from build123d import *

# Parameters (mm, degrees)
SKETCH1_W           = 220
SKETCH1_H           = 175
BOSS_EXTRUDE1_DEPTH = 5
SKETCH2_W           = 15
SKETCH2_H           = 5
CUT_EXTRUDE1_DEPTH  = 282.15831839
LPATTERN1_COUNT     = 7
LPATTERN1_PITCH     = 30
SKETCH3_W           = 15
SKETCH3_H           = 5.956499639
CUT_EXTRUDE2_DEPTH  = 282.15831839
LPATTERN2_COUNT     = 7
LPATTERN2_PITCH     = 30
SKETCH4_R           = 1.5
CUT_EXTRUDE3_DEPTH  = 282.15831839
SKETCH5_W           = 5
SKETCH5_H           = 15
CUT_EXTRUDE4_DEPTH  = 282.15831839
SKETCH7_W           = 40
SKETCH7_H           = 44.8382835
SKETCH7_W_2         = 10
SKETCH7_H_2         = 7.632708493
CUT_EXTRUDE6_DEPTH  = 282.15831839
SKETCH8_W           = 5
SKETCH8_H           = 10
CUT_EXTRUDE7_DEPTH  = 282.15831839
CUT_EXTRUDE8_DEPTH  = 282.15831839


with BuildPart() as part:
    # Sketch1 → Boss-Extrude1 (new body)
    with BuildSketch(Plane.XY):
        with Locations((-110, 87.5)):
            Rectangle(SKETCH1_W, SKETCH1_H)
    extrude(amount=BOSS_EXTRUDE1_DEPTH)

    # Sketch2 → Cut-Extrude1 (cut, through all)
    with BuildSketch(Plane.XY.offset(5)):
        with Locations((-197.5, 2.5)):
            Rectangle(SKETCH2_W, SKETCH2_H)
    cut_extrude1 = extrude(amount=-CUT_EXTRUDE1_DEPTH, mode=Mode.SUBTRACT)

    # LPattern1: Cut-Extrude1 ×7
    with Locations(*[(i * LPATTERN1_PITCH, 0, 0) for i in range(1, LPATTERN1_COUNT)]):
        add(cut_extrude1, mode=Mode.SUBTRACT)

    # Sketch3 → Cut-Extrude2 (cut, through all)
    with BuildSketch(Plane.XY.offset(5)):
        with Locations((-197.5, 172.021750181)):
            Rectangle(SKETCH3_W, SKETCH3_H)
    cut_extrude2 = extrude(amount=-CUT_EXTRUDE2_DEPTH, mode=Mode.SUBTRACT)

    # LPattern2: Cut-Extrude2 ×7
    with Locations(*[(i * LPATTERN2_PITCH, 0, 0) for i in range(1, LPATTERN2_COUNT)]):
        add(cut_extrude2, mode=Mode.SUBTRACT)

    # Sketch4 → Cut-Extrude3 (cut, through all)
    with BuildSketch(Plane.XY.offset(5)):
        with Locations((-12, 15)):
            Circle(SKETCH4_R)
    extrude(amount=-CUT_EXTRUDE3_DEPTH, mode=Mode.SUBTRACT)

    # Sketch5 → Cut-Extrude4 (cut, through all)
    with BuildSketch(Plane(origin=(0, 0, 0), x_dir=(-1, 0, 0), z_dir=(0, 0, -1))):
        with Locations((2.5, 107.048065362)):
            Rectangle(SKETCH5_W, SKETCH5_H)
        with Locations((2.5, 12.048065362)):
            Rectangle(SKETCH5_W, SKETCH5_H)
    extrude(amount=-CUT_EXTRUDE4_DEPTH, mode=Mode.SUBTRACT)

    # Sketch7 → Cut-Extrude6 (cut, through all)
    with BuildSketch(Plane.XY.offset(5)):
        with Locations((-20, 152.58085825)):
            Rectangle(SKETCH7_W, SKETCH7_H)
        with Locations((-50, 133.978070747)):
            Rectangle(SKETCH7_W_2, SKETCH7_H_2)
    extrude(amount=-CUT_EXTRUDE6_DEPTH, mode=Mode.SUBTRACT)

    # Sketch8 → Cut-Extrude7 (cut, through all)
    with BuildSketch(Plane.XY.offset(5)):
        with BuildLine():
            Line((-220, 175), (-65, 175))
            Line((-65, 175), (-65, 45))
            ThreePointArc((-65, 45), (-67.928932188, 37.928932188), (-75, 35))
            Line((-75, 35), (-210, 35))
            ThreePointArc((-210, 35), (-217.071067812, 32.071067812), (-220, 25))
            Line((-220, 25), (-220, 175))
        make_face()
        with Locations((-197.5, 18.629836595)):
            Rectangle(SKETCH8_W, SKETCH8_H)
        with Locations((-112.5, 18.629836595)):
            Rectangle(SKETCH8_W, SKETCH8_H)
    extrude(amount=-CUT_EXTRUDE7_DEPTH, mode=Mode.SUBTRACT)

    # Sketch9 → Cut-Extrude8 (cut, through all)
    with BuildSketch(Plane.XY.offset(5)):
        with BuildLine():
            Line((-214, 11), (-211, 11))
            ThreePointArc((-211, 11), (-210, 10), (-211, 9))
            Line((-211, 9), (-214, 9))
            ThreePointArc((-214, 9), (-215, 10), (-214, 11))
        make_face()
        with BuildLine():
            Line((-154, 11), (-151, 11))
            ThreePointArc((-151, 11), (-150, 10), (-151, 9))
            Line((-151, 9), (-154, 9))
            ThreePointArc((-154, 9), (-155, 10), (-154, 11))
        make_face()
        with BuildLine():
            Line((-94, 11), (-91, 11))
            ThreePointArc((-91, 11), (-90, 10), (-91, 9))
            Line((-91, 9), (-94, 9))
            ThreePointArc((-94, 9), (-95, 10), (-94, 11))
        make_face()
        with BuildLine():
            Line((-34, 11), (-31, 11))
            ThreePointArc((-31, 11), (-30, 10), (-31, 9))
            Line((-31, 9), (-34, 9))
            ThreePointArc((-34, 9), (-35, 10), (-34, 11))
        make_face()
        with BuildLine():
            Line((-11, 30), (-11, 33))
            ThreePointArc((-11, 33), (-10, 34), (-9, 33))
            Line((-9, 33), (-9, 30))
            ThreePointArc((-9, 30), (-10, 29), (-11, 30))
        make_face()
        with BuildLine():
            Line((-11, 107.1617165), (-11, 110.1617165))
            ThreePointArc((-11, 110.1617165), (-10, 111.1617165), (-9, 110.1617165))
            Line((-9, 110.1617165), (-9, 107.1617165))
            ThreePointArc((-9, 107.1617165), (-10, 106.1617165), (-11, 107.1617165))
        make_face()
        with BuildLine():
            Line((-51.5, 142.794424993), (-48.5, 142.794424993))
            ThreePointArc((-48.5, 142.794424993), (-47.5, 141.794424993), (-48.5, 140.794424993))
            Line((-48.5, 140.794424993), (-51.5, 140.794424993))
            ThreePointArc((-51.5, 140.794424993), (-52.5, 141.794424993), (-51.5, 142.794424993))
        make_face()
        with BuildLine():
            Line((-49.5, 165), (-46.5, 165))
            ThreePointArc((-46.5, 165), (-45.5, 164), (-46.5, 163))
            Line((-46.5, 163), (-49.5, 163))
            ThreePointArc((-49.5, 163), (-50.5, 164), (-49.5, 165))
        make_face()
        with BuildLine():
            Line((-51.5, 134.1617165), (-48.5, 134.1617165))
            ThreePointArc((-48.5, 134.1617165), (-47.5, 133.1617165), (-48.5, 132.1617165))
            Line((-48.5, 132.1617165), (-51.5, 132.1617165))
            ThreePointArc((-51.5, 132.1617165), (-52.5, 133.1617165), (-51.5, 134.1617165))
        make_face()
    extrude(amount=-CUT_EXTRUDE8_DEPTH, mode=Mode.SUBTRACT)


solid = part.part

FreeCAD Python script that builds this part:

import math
import FreeCAD as App
import Part
import Sketcher

doc = App.newDocument("Part")
body = doc.addObject("PartDesign::Body", "Body")

# Sketch on XY plane
sketch1 = doc.addObject("Sketcher::SketchObject", "Sketch")
body.addObject(sketch1)
sketch1.AttachmentSupport = (doc.XY_Plane, [""])
sketch1.MapMode = "FlatFace"
sketch1.addGeometry([
    Part.LineSegment(App.Vector(-220, 175, 0), App.Vector(-220, 0, 0)),
    Part.LineSegment(App.Vector(-220, 0, 0), App.Vector(0, 0, 0)),
    Part.LineSegment(App.Vector(0, 0, 0), App.Vector(0, 175, 0)),
    Part.LineSegment(App.Vector(0, 175, 0), App.Vector(-220, 175, 0)),
], False)
sketch1.addConstraint([
    Sketcher.Constraint("Coincident", 0, 2, 1, 1),
    Sketcher.Constraint("Coincident", 1, 2, 2, 1),
    Sketcher.Constraint("Coincident", 2, 2, 3, 1),
    Sketcher.Constraint("Coincident", 3, 2, 0, 1),
    Sketcher.Constraint("Vertical", 0),
    Sketcher.Constraint("Horizontal", 1),
    Sketcher.Constraint("Vertical", 2),
    Sketcher.Constraint("Horizontal", 3),
    Sketcher.Constraint("Coincident", 1, 2, -1, 1),
    Sketcher.Constraint("DistanceX", 1, 1, 1, 2, 220.0),
    Sketcher.Constraint("DistanceY", 0, 2, 0, 1, 175.0),
])
pad1 = doc.addObject("PartDesign::Pad", "Pad")
body.addObject(pad1)
pad1.Profile = sketch1
pad1.Length = 5

# Sketch on XY plane
sketch2 = doc.addObject("Sketcher::SketchObject", "Sketch001")
body.addObject(sketch2)
sketch2.AttachmentSupport = (doc.XY_Plane, [""])
sketch2.MapMode = "FlatFace"
sketch2.AttachmentOffset = App.Placement(App.Vector(0, 0, 5), App.Rotation())
sketch2.addGeometry([
    Part.LineSegment(App.Vector(-205, 5, 0), App.Vector(-205, 0, 0)),
    Part.LineSegment(App.Vector(-205, 0, 0), App.Vector(-190, 0, 0)),
    Part.LineSegment(App.Vector(-190, 0, 0), App.Vector(-190, 5, 0)),
    Part.LineSegment(App.Vector(-190, 5, 0), App.Vector(-205, 5, 0)),
], False)
sketch2.addConstraint([
    Sketcher.Constraint("Coincident", 0, 2, 1, 1),
    Sketcher.Constraint("Coincident", 1, 2, 2, 1),
    Sketcher.Constraint("Coincident", 2, 2, 3, 1),
    Sketcher.Constraint("Coincident", 3, 2, 0, 1),
    Sketcher.Constraint("Vertical", 0),
    Sketcher.Constraint("Horizontal", 1),
    Sketcher.Constraint("Vertical", 2),
    Sketcher.Constraint("Horizontal", 3),
    Sketcher.Constraint("PointOnObject", 0, 2, -1),
    Sketcher.Constraint("DistanceX", 1, 1, 1, 2, 15.0),
    Sketcher.Constraint("DistanceY", 0, 2, 0, 1, 5.0),
    Sketcher.Constraint("DistanceX", 0, 2, -1, 1, 205.0),
])
pocket1 = doc.addObject("PartDesign::Pocket", "Pocket")
body.addObject(pocket1)
pocket1.Profile = sketch2
pocket1.Type = "ThroughAll"
doc.recompute()

linearpattern = doc.addObject("PartDesign::LinearPattern", "LinearPattern")
body.addObject(linearpattern)
linearpattern.Originals = [pocket1]
linearpattern.Direction = (doc.X_Axis, [""])
linearpattern.Mode = "offset"
linearpattern.Offset = 30
linearpattern.Occurrences = 7
body.Tip = linearpattern

# Sketch on XY plane
sketch3 = doc.addObject("Sketcher::SketchObject", "Sketch002")
body.addObject(sketch3)
sketch3.AttachmentSupport = (doc.XY_Plane, [""])
sketch3.MapMode = "FlatFace"
sketch3.AttachmentOffset = App.Placement(App.Vector(0, 0, 5), App.Rotation())
sketch3.addGeometry([
    Part.LineSegment(App.Vector(-205, 175, 0), App.Vector(-205, 169.0435, 0)),
    Part.LineSegment(App.Vector(-205, 169.0435, 0), App.Vector(-190, 169.0435, 0)),
    Part.LineSegment(App.Vector(-190, 169.0435, 0), App.Vector(-190, 175, 0)),
    Part.LineSegment(App.Vector(-190, 175, 0), App.Vector(-205, 175, 0)),
], False)
sketch3.addConstraint([
    Sketcher.Constraint("Coincident", 0, 2, 1, 1),
    Sketcher.Constraint("Coincident", 1, 2, 2, 1),
    Sketcher.Constraint("Coincident", 2, 2, 3, 1),
    Sketcher.Constraint("Coincident", 3, 2, 0, 1),
    Sketcher.Constraint("Vertical", 0),
    Sketcher.Constraint("Horizontal", 1),
    Sketcher.Constraint("Vertical", 2),
    Sketcher.Constraint("Horizontal", 3),
    Sketcher.Constraint("DistanceX", 1, 1, 1, 2, 15.0),
    Sketcher.Constraint("DistanceX", 0, 2, -1, 1, 205.0),
    Sketcher.Constraint("DistanceY", -1, 1, 2, 2, 175.0),
    Sketcher.Constraint("DistanceY", 0, 2, 0, 1, 5.9565),
])
pocket2 = doc.addObject("PartDesign::Pocket", "Pocket001")
body.addObject(pocket2)
pocket2.Profile = sketch3
pocket2.Type = "ThroughAll"
doc.recompute()

linearpattern2 = doc.addObject("PartDesign::LinearPattern", "LinearPattern001")
body.addObject(linearpattern2)
linearpattern2.Originals = [pocket2]
linearpattern2.Direction = (doc.X_Axis, [""])
linearpattern2.Mode = "offset"
linearpattern2.Offset = 30
linearpattern2.Occurrences = 7
body.Tip = linearpattern2

# Sketch on XY plane
sketch4 = doc.addObject("Sketcher::SketchObject", "Sketch003")
body.addObject(sketch4)
sketch4.AttachmentSupport = (doc.XY_Plane, [""])
sketch4.MapMode = "FlatFace"
sketch4.AttachmentOffset = App.Placement(App.Vector(0, 0, 5), App.Rotation())
sketch4.addGeometry(Part.Circle(App.Vector(-12, 15, 0), App.Vector(0, 0, 1), 1.5), False)
sketch4.addConstraint([
    Sketcher.Constraint("Diameter", 0, 3.0),
    Sketcher.Constraint("DistanceX", 0, 3, -1, 1, 12.0),
    Sketcher.Constraint("DistanceY", -1, 1, 0, 3, 15.0),
])
pocket3 = doc.addObject("PartDesign::Pocket", "Pocket002")
body.addObject(pocket3)
pocket3.Profile = sketch4
pocket3.Type = "ThroughAll"

# Sketch on XY plane
sketch5 = doc.addObject("Sketcher::SketchObject", "Sketch004")
body.addObject(sketch5)
sketch5.AttachmentSupport = (doc.XY_Plane, [""])
sketch5.MapMode = "FlatFace"
sketch5.addGeometry([
    Part.LineSegment(App.Vector(0, 114.548065, 0), App.Vector(0, 99.548065, 0)),  # 0
    Part.LineSegment(App.Vector(0, 99.548065, 0), App.Vector(-5, 99.548065, 0)),  # 1
    Part.LineSegment(App.Vector(-5, 99.548065, 0), App.Vector(-5, 114.548065, 0)),  # 2
    Part.LineSegment(App.Vector(-5, 114.548065, 0), App.Vector(0, 114.548065, 0)),  # 3
    Part.LineSegment(App.Vector(0, 19.548065, 0), App.Vector(0, 4.548065, 0)),  # 4
    Part.LineSegment(App.Vector(0, 4.548065, 0), App.Vector(-5, 4.548065, 0)),  # 5
    Part.LineSegment(App.Vector(-5, 4.548065, 0), App.Vector(-5, 19.548065, 0)),  # 6
    Part.LineSegment(App.Vector(-5, 19.548065, 0), App.Vector(0, 19.548065, 0)),  # 7
], False)
sketch5.addConstraint([
    Sketcher.Constraint("Coincident", 0, 2, 1, 1),
    Sketcher.Constraint("Coincident", 1, 2, 2, 1),
    Sketcher.Constraint("Coincident", 2, 2, 3, 1),
    Sketcher.Constraint("Coincident", 3, 2, 0, 1),
    Sketcher.Constraint("Coincident", 4, 2, 5, 1),
    Sketcher.Constraint("Coincident", 5, 2, 6, 1),
    Sketcher.Constraint("Coincident", 6, 2, 7, 1),
    Sketcher.Constraint("Coincident", 7, 2, 4, 1),
    Sketcher.Constraint("Vertical", 0),
    Sketcher.Constraint("Horizontal", 1),
    Sketcher.Constraint("Vertical", 2),
    Sketcher.Constraint("Horizontal", 3),
    Sketcher.Constraint("Vertical", 4),
    Sketcher.Constraint("Horizontal", 5),
    Sketcher.Constraint("Vertical", 6),
    Sketcher.Constraint("Horizontal", 7),
    Sketcher.Constraint("PointOnObject", 0, 2, -2),
    Sketcher.Constraint("PointOnObject", 4, 2, -2),
    Sketcher.Constraint("Vertical", 2, 2, 5, 2),
    Sketcher.Constraint("Equal", 2, 4),
    Sketcher.Constraint("DistanceX", 1, 2, 1, 1, 5.0),
    Sketcher.Constraint("DistanceY", 0, 2, 0, 1, 15.0),
    Sketcher.Constraint("DistanceY", 4, 2, 0, 2, 95.0),
    Sketcher.Constraint("DistanceY", -1, 1, 0, 2, 99.548065),
])
pocket4 = doc.addObject("PartDesign::Pocket", "Pocket003")
body.addObject(pocket4)
pocket4.Profile = sketch5
pocket4.Type = "ThroughAll"
pocket4.Reversed = True

# Sketch on XY plane
sketch6 = doc.addObject("Sketcher::SketchObject", "Sketch005")
body.addObject(sketch6)
sketch6.AttachmentSupport = (doc.XY_Plane, [""])
sketch6.MapMode = "FlatFace"
sketch6.AttachmentOffset = App.Placement(App.Vector(0, 0, 5), App.Rotation())
sketch6.addGeometry([
    Part.LineSegment(App.Vector(-40, 175, 0), App.Vector(-40, 130.161717, 0)),  # 0
    Part.LineSegment(App.Vector(-40, 130.161717, 0), App.Vector(0, 130.161717, 0)),  # 1
    Part.LineSegment(App.Vector(0, 130.161717, 0), App.Vector(0, 175, 0)),  # 2
    Part.LineSegment(App.Vector(0, 175, 0), App.Vector(-40, 175, 0)),  # 3
    Part.LineSegment(App.Vector(-55, 137.794425, 0), App.Vector(-55, 130.161717, 0)),  # 4
    Part.LineSegment(App.Vector(-55, 130.161717, 0), App.Vector(-45, 130.161717, 0)),  # 5
    Part.LineSegment(App.Vector(-45, 130.161717, 0), App.Vector(-45, 137.794425, 0)),  # 6
    Part.LineSegment(App.Vector(-45, 137.794425, 0), App.Vector(-55, 137.794425, 0)),  # 7
], False)
sketch6.addConstraint([
    Sketcher.Constraint("Coincident", 0, 2, 1, 1),
    Sketcher.Constraint("Coincident", 1, 2, 2, 1),
    Sketcher.Constraint("Coincident", 2, 2, 3, 1),
    Sketcher.Constraint("Coincident", 3, 2, 0, 1),
    Sketcher.Constraint("Coincident", 4, 2, 5, 1),
    Sketcher.Constraint("Coincident", 5, 2, 6, 1),
    Sketcher.Constraint("Coincident", 6, 2, 7, 1),
    Sketcher.Constraint("Coincident", 7, 2, 4, 1),
    Sketcher.Constraint("Vertical", 0),
    Sketcher.Constraint("Horizontal", 1),
    Sketcher.Constraint("Vertical", 2),
    Sketcher.Constraint("Horizontal", 3),
    Sketcher.Constraint("Vertical", 4),
    Sketcher.Constraint("Horizontal", 5),
    Sketcher.Constraint("Vertical", 6),
    Sketcher.Constraint("Horizontal", 7),
    Sketcher.Constraint("PointOnObject", 1, 2, -2),
    Sketcher.Constraint("Horizontal", 1, 2, 4, 2),
    Sketcher.Constraint("DistanceX", 1, 1, 1, 2, 40.0),
    Sketcher.Constraint("DistanceX", 5, 1, 5, 2, 10.0),
    Sketcher.Constraint("DistanceY", -1, 1, 2, 2, 175.0),
    Sketcher.Constraint("DistanceX", 4, 2, -1, 1, 55.0),
    Sketcher.Constraint("DistanceY", 4, 2, 4, 1, 7.632708),
    Sketcher.Constraint("DistanceY", 0, 2, 0, 1, 44.838283),
])
pocket5 = doc.addObject("PartDesign::Pocket", "Pocket004")
body.addObject(pocket5)
pocket5.Profile = sketch6
pocket5.Type = "ThroughAll"

# Sketch on XY plane
sketch7 = doc.addObject("Sketcher::SketchObject", "Sketch006")
body.addObject(sketch7)
sketch7.AttachmentSupport = (doc.XY_Plane, [""])
sketch7.MapMode = "FlatFace"
sketch7.AttachmentOffset = App.Placement(App.Vector(0, 0, 5), App.Rotation())
sketch7.addGeometry([
    Part.LineSegment(App.Vector(-65, 175, 0), App.Vector(-220, 175, 0)),  # 0
    Part.LineSegment(App.Vector(-220, 175, 0), App.Vector(-220, 25, 0)),  # 1
    Part.ArcOfCircle(Part.Circle(App.Vector(-210, 25, 0), App.Vector(0, 0, 1), 10), math.radians(90), math.radians(180)),  # 2
    Part.LineSegment(App.Vector(-210, 35, 0), App.Vector(-75, 35, 0)),  # 3
    Part.ArcOfCircle(Part.Circle(App.Vector(-75, 45, 0), App.Vector(0, 0, 1), 10), math.radians(-90), math.radians(0)),  # 4
    Part.LineSegment(App.Vector(-65, 45, 0), App.Vector(-65, 175, 0)),  # 5
    Part.LineSegment(App.Vector(-200, 23.629837, 0), App.Vector(-200, 13.629837, 0)),  # 6
    Part.LineSegment(App.Vector(-200, 13.629837, 0), App.Vector(-195, 13.629837, 0)),  # 7
    Part.LineSegment(App.Vector(-195, 13.629837, 0), App.Vector(-195, 23.629837, 0)),  # 8
    Part.LineSegment(App.Vector(-195, 23.629837, 0), App.Vector(-200, 23.629837, 0)),  # 9
    Part.LineSegment(App.Vector(-115, 23.629837, 0), App.Vector(-115, 13.629837, 0)),  # 10
    Part.LineSegment(App.Vector(-115, 13.629837, 0), App.Vector(-110, 13.629837, 0)),  # 11
    Part.LineSegment(App.Vector(-110, 13.629837, 0), App.Vector(-110, 23.629837, 0)),  # 12
    Part.LineSegment(App.Vector(-110, 23.629837, 0), App.Vector(-115, 23.629837, 0)),  # 13
], False)
sketch7.addConstraint([
    Sketcher.Constraint("Coincident", 0, 2, 1, 1),
    Sketcher.Constraint("Tangent", 1, 2, 2, 2),
    Sketcher.Constraint("Tangent", 2, 1, 3, 1),
    Sketcher.Constraint("Tangent", 3, 2, 4, 1),
    Sketcher.Constraint("Tangent", 4, 2, 5, 1),
    Sketcher.Constraint("Coincident", 5, 2, 0, 1),
    Sketcher.Constraint("Coincident", 6, 2, 7, 1),
    Sketcher.Constraint("Coincident", 7, 2, 8, 1),
    Sketcher.Constraint("Coincident", 8, 2, 9, 1),
    Sketcher.Constraint("Coincident", 9, 2, 6, 1),
    Sketcher.Constraint("Coincident", 10, 2, 11, 1),
    Sketcher.Constraint("Coincident", 11, 2, 12, 1),
    Sketcher.Constraint("Coincident", 12, 2, 13, 1),
    Sketcher.Constraint("Coincident", 13, 2, 10, 1),
    Sketcher.Constraint("Horizontal", 0),
    Sketcher.Constraint("Vertical", 1),
    Sketcher.Constraint("Horizontal", 3),
    Sketcher.Constraint("Vertical", 5),
    Sketcher.Constraint("Vertical", 6),
    Sketcher.Constraint("Horizontal", 7),
    Sketcher.Constraint("Vertical", 8),
    Sketcher.Constraint("Horizontal", 9),
    Sketcher.Constraint("Vertical", 10),
    Sketcher.Constraint("Horizontal", 11),
    Sketcher.Constraint("Vertical", 12),
    Sketcher.Constraint("Horizontal", 13),
    Sketcher.Constraint("Equal", 2, 4),
    Sketcher.Constraint("Horizontal", 7, 2, 10, 2),
    Sketcher.Constraint("Horizontal", 9, 2, 12, 2),
    Sketcher.Constraint("Equal", 9, 11),
    Sketcher.Constraint("Radius", 2, 10.0),
    Sketcher.Constraint("DistanceX", 0, 2, 0, 1, 155.0),
    Sketcher.Constraint("DistanceX", 7, 1, 7, 2, 5.0),
    Sketcher.Constraint("DistanceY", 1, 2, 1, 1, 150.0),
    Sketcher.Constraint("DistanceY", 6, 2, 6, 1, 10.0),
    Sketcher.Constraint("DistanceX", 2, 3, -1, 1, 210.0),
    Sketcher.Constraint("DistanceY", -1, 1, 2, 3, 25.0),
    Sketcher.Constraint("DistanceX", 6, 2, -1, 1, 200.0),
    Sketcher.Constraint("DistanceX", 10, 2, -1, 1, 115.0),
    Sketcher.Constraint("DistanceY", -1, 1, 6, 2, 13.629837),
])
pocket6 = doc.addObject("PartDesign::Pocket", "Pocket005")
body.addObject(pocket6)
pocket6.Profile = sketch7
pocket6.Type = "ThroughAll"

# Sketch on XY plane
sketch8 = doc.addObject("Sketcher::SketchObject", "Sketch007")
body.addObject(sketch8)
sketch8.AttachmentSupport = (doc.XY_Plane, [""])
sketch8.MapMode = "FlatFace"
sketch8.AttachmentOffset = App.Placement(App.Vector(0, 0, 5), App.Rotation())
sketch8.addGeometry([
    Part.LineSegment(App.Vector(-211, 11, 0), App.Vector(-214, 11, 0)),  # 0
    Part.ArcOfCircle(Part.Circle(App.Vector(-214, 10, 0), App.Vector(0, 0, 1), 1), math.radians(90), math.radians(270)),  # 1
    Part.LineSegment(App.Vector(-214, 9, 0), App.Vector(-211, 9, 0)),  # 2
    Part.ArcOfCircle(Part.Circle(App.Vector(-211, 10, 0), App.Vector(0, 0, 1), 1), math.radians(-90), math.radians(90)),  # 3
    Part.LineSegment(App.Vector(-151, 11, 0), App.Vector(-154, 11, 0)),  # 4
    Part.ArcOfCircle(Part.Circle(App.Vector(-154, 10, 0), App.Vector(0, 0, 1), 1), math.radians(90), math.radians(270)),  # 5
    Part.LineSegment(App.Vector(-154, 9, 0), App.Vector(-151, 9, 0)),  # 6
    Part.ArcOfCircle(Part.Circle(App.Vector(-151, 10, 0), App.Vector(0, 0, 1), 1), math.radians(-90), math.radians(90)),  # 7
    Part.LineSegment(App.Vector(-91, 11, 0), App.Vector(-94, 11, 0)),  # 8
    Part.ArcOfCircle(Part.Circle(App.Vector(-94, 10, 0), App.Vector(0, 0, 1), 1), math.radians(90), math.radians(270)),  # 9
    Part.LineSegment(App.Vector(-94, 9, 0), App.Vector(-91, 9, 0)),  # 10
    Part.ArcOfCircle(Part.Circle(App.Vector(-91, 10, 0), App.Vector(0, 0, 1), 1), math.radians(-90), math.radians(90)),  # 11
    Part.LineSegment(App.Vector(-31, 11, 0), App.Vector(-34, 11, 0)),  # 12
    Part.ArcOfCircle(Part.Circle(App.Vector(-34, 10, 0), App.Vector(0, 0, 1), 1), math.radians(90), math.radians(270)),  # 13
    Part.LineSegment(App.Vector(-34, 9, 0), App.Vector(-31, 9, 0)),  # 14
    Part.ArcOfCircle(Part.Circle(App.Vector(-31, 10, 0), App.Vector(0, 0, 1), 1), math.radians(-90), math.radians(90)),  # 15
    Part.LineSegment(App.Vector(-11, 33, 0), App.Vector(-11, 30, 0)),  # 16
    Part.ArcOfCircle(Part.Circle(App.Vector(-10, 30, 0), App.Vector(0, 0, 1), 1), math.radians(180), math.radians(360)),  # 17
    Part.LineSegment(App.Vector(-9, 30, 0), App.Vector(-9, 33, 0)),  # 18
    Part.ArcOfCircle(Part.Circle(App.Vector(-10, 33, 0), App.Vector(0, 0, 1), 1), math.radians(0), math.radians(180)),  # 19
    Part.LineSegment(App.Vector(-11, 110.161716, 0), App.Vector(-11, 107.161716, 0)),  # 20
    Part.ArcOfCircle(Part.Circle(App.Vector(-10, 107.161716, 0), App.Vector(0, 0, 1), 1), math.radians(180), math.radians(360)),  # 21
    Part.LineSegment(App.Vector(-9, 107.161716, 0), App.Vector(-9, 110.161716, 0)),  # 22
    Part.ArcOfCircle(Part.Circle(App.Vector(-10, 110.161716, 0), App.Vector(0, 0, 1), 1), math.radians(0), math.radians(180)),  # 23
    Part.LineSegment(App.Vector(-48.5, 142.794425, 0), App.Vector(-51.5, 142.794425, 0)),  # 24
    Part.ArcOfCircle(Part.Circle(App.Vector(-51.5, 141.794425, 0), App.Vector(0, 0, 1), 1), math.radians(90), math.radians(270)),  # 25
    Part.LineSegment(App.Vector(-51.5, 140.794425, 0), App.Vector(-48.5, 140.794425, 0)),  # 26
    Part.ArcOfCircle(Part.Circle(App.Vector(-48.5, 141.794425, 0), App.Vector(0, 0, 1), 1), math.radians(-90), math.radians(90)),  # 27
    Part.LineSegment(App.Vector(-46.5, 165, 0), App.Vector(-49.5, 165, 0)),  # 28
    Part.ArcOfCircle(Part.Circle(App.Vector(-49.5, 164, 0), App.Vector(0, 0, 1), 1), math.radians(90), math.radians(270)),  # 29
    Part.LineSegment(App.Vector(-49.5, 163, 0), App.Vector(-46.5, 163, 0)),  # 30
    Part.ArcOfCircle(Part.Circle(App.Vector(-46.5, 164, 0), App.Vector(0, 0, 1), 1), math.radians(-90), math.radians(90)),  # 31
    Part.LineSegment(App.Vector(-48.5, 134.161717, 0), App.Vector(-51.5, 134.161717, 0)),  # 32
    Part.ArcOfCircle(Part.Circle(App.Vector(-51.5, 133.161717, 0), App.Vector(0, 0, 1), 1), math.radians(90), math.radians(270)),  # 33
    Part.LineSegment(App.Vector(-51.5, 132.161717, 0), App.Vector(-48.5, 132.161717, 0)),  # 34
    Part.ArcOfCircle(Part.Circle(App.Vector(-48.5, 133.161717, 0), App.Vector(0, 0, 1), 1), math.radians(-90), math.radians(90)),  # 35
], False)
sketch8.addConstraint([
    Sketcher.Constraint("Tangent", 0, 2, 1, 1),
    Sketcher.Constraint("Tangent", 1, 2, 2, 1),
    Sketcher.Constraint("Tangent", 2, 2, 3, 1),
    Sketcher.Constraint("Tangent", 3, 2, 0, 1),
    Sketcher.Constraint("Tangent", 4, 2, 5, 1),
    Sketcher.Constraint("Tangent", 5, 2, 6, 1),
    Sketcher.Constraint("Tangent", 6, 2, 7, 1),
    Sketcher.Constraint("Tangent", 7, 2, 4, 1),
    Sketcher.Constraint("Tangent", 8, 2, 9, 1),
    Sketcher.Constraint("Tangent", 9, 2, 10, 1),
    Sketcher.Constraint("Tangent", 10, 2, 11, 1),
    Sketcher.Constraint("Tangent", 11, 2, 8, 1),
    Sketcher.Constraint("Tangent", 12, 2, 13, 1),
    Sketcher.Constraint("Tangent", 13, 2, 14, 1),
    Sketcher.Constraint("Tangent", 14, 2, 15, 1),
    Sketcher.Constraint("Tangent", 15, 2, 12, 1),
    Sketcher.Constraint("Tangent", 16, 2, 17, 1),
    Sketcher.Constraint("Tangent", 17, 2, 18, 1),
    Sketcher.Constraint("Tangent", 18, 2, 19, 1),
    Sketcher.Constraint("Tangent", 19, 2, 16, 1),
    Sketcher.Constraint("Tangent", 20, 2, 21, 1),
    Sketcher.Constraint("Tangent", 21, 2, 22, 1),
    Sketcher.Constraint("Tangent", 22, 2, 23, 1),
    Sketcher.Constraint("Tangent", 23, 2, 20, 1),
    Sketcher.Constraint("Tangent", 24, 2, 25, 1),
    Sketcher.Constraint("Tangent", 25, 2, 26, 1),
    Sketcher.Constraint("Tangent", 26, 2, 27, 1),
    Sketcher.Constraint("Tangent", 27, 2, 24, 1),
    Sketcher.Constraint("Tangent", 28, 2, 29, 1),
    Sketcher.Constraint("Tangent", 29, 2, 30, 1),
    Sketcher.Constraint("Tangent", 30, 2, 31, 1),
    Sketcher.Constraint("Tangent", 31, 2, 28, 1),
    Sketcher.Constraint("Tangent", 32, 2, 33, 1),
    Sketcher.Constraint("Tangent", 33, 2, 34, 1),
    Sketcher.Constraint("Tangent", 34, 2, 35, 1),
    Sketcher.Constraint("Tangent", 35, 2, 32, 1),
    Sketcher.Constraint("Horizontal", 0),
    Sketcher.Constraint("Horizontal", 2),
    Sketcher.Constraint("Horizontal", 4),
    Sketcher.Constraint("Horizontal", 6),
    Sketcher.Constraint("Horizontal", 8),
    Sketcher.Constraint("Horizontal", 10),
    Sketcher.Constraint("Horizontal", 12),
    Sketcher.Constraint("Horizontal", 14),
    Sketcher.Constraint("Vertical", 16),
    Sketcher.Constraint("Vertical", 18),
    Sketcher.Constraint("Vertical", 20),
    Sketcher.Constraint("Vertical", 22),
    Sketcher.Constraint("Horizontal", 24),
    Sketcher.Constraint("Horizontal", 26),
    Sketcher.Constraint("Horizontal", 28),
    Sketcher.Constraint("Horizontal", 30),
    Sketcher.Constraint("Horizontal", 32),
    Sketcher.Constraint("Horizontal", 34),
    Sketcher.Constraint("Equal", 3, 5),
    Sketcher.Constraint("Equal", 7, 9),
    Sketcher.Constraint("Equal", 11, 13),
    Sketcher.Constraint("Equal", 15, 17),
    Sketcher.Constraint("Equal", 19, 21),
    Sketcher.Constraint("Equal", 23, 25),
    Sketcher.Constraint("Equal", 27, 29),
    Sketcher.Constraint("Equal", 31, 33),
    Sketcher.Constraint("Horizontal", 3, 3, 5, 3),
    Sketcher.Constraint("Horizontal", 7, 3, 9, 3),
    Sketcher.Constraint("Horizontal", 11, 3, 13, 3),
    Sketcher.Constraint("Vertical", 19, 3, 21, 3),
    Sketcher.Constraint("Vertical", 25, 3, 33, 3),
    Sketcher.Constraint("Vertical", 27, 3, 35, 3),
    Sketcher.Constraint("Equal", 2, 4),
    Sketcher.Constraint("Equal", 6, 8),
    Sketcher.Constraint("Equal", 10, 12),
    Sketcher.Constraint("Equal", 14, 24),
    Sketcher.Constraint("Equal", 26, 28),
    Sketcher.Constraint("Equal", 34, 16),
    Sketcher.Constraint("Equal", 18, 20),
    Sketcher.Constraint("Radius", 1, 1.0),
    Sketcher.Constraint("DistanceX", 0, 2, 0, 1, 3.0),
    Sketcher.Constraint("DistanceX", 1, 3, -1, 1, 214.0),
    Sketcher.Constraint("DistanceY", -1, 1, 1, 3, 10.0),
    Sketcher.Constraint("DistanceX", 5, 3, -1, 1, 154.0),
    Sketcher.Constraint("DistanceX", 9, 3, -1, 1, 94.0),
    Sketcher.Constraint("DistanceX", 13, 3, -1, 1, 34.0),
    Sketcher.Constraint("DistanceX", 17, 3, -1, 1, 10.0),
    Sketcher.Constraint("DistanceY", -1, 1, 17, 3, 30.0),
    Sketcher.Constraint("DistanceY", -1, 1, 29, 3, 164.0),
    Sketcher.Constraint("DistanceX", 29, 3, 27, 3, 1.0),
    Sketcher.Constraint("DistanceY", 23, 3, 33, 3, 23.0),
    Sketcher.Constraint("DistanceX", 25, 3, -1, 1, 51.5),
    Sketcher.Constraint("DistanceY", 23, 3, 25, 3, 31.632708),
    Sketcher.Constraint("DistanceY", -1, 1, 21, 3, 107.161716),
])
pocket7 = doc.addObject("PartDesign::Pocket", "Pocket006")
body.addObject(pocket7)
pocket7.Profile = sketch8
pocket7.Type = "ThroughAll"

doc.recompute()
